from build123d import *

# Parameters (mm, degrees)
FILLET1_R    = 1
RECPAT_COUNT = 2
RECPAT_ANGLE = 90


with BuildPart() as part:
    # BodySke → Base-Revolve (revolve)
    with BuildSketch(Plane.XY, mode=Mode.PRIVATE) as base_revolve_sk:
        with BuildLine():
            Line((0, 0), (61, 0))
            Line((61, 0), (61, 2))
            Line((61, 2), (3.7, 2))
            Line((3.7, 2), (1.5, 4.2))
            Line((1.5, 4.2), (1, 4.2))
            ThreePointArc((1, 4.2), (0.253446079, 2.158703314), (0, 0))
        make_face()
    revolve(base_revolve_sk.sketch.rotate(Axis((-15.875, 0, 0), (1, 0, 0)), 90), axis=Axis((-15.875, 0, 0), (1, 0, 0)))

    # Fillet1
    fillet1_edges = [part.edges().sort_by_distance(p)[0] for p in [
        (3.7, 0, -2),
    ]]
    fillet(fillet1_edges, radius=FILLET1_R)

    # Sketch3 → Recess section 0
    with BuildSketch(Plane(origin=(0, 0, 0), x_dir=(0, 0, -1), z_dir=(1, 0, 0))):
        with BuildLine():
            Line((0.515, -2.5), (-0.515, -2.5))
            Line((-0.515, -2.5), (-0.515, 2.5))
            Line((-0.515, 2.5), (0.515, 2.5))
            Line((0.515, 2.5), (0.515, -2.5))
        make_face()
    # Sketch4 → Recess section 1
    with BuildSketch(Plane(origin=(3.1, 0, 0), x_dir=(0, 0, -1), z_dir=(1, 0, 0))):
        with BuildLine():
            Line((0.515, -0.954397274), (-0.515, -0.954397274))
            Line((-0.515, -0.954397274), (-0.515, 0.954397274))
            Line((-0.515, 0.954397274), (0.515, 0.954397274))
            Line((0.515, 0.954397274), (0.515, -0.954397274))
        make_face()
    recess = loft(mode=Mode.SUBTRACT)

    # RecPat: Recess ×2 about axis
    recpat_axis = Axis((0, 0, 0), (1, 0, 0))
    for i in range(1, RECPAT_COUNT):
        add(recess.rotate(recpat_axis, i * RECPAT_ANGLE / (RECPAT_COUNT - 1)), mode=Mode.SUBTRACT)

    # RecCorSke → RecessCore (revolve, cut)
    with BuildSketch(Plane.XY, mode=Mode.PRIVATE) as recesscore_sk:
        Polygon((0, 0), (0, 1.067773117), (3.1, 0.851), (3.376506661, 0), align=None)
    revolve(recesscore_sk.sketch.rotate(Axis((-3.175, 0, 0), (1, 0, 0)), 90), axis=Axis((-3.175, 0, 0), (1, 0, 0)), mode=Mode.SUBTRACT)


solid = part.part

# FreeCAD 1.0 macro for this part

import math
import FreeCAD as App
import Part
import Sketcher

V = App.Vector
Q = App.Units.Quantity


def edges_at(feature, points):
    """Names of the edges that pass closest to the given points."""
    edges = feature.Shape.Edges
    near = lambda p: min(range(len(edges)), key=lambda i: edges[i].distToShape(Part.Vertex(*p))[0])
    return sorted({f"Edge{near(p) + 1}" for p in points})

doc = App.newDocument("Part")
body = doc.addObject("PartDesign::Body", "Body")

# Sketch on XY plane
sketch1 = body.newObject("Sketcher::SketchObject", "Sketch")
sketch1.AttachmentSupport = (doc.getObject("XY_Plane"), [""])
sketch1.MapMode = "FlatFace"
sketch1.addGeometry([
    Part.LineSegment(V(0, 0, 0), V(61, 0, 0)),  # 0
    Part.LineSegment(V(61, 0, 0), V(61, 2, 0)),  # 1
    Part.LineSegment(V(61, 2, 0), V(3.7, 2, 0)),  # 2
    Part.LineSegment(V(3.7, 2, 0), V(1.5, 4.2, 0)),  # 3
    Part.LineSegment(V(1.5, 4.2, 0), V(1, 4.2, 0)),  # 4
    Part.ArcOfCircle(Part.Circle(V(9.3, 0, 0), V(0, 0, 1), 9.3), math.radians(153), math.radians(180)),  # 5
], False)
sketch1.addConstraint([
    Sketcher.Constraint("Coincident", 0, 2, 1, 1),
    Sketcher.Constraint("Coincident", 1, 2, 2, 1),
    Sketcher.Constraint("Coincident", 2, 2, 3, 1),
    Sketcher.Constraint("Coincident", 3, 2, 4, 1),
    Sketcher.Constraint("Coincident", 4, 2, 5, 1),
    Sketcher.Constraint("Coincident", 5, 2, 0, 1),
    Sketcher.Constraint("Horizontal", 0),
    Sketcher.Constraint("Vertical", 1),
    Sketcher.Constraint("Horizontal", 2),
    Sketcher.Constraint("Horizontal", 4),
    Sketcher.Constraint("Coincident", 5, 2, -1, 1),
    Sketcher.Constraint("PointOnObject", 5, 3, -1),
    Sketcher.Constraint("DistanceX", 0, 1, 0, 2, Q("61 mm")),
    Sketcher.Constraint("DistanceY", 1, 1, 1, 2, Q("2 mm")),
    Sketcher.Constraint("Angle", 3, Q("135 deg")),
    Sketcher.Constraint("Radius", 5, Q("9.32 mm")),
    Sketcher.Constraint("DistanceX", 2, 2, 2, 1, Q("57.3 mm")),
    Sketcher.Constraint("DistanceX", 4, 2, 4, 1, Q("0.5 mm")),
])
revolution = body.newObject("PartDesign::Revolution", "Revolution")
revolution.Profile = sketch1
revolution.ReferenceAxis = (sketch1, ["H_Axis"])
revolution.Angle = 360
doc.recompute()

fillet = body.newObject("PartDesign::Fillet", "Fillet")
fillet.Base = (revolution, edges_at(revolution, [(3.7, 0, -2)]))
fillet.Radius = 1

# Sketch on YZ plane
sketch2 = body.newObject("Sketcher::SketchObject", "Sketch001")
sketch2.AttachmentSupport = (doc.getObject("YZ_Plane"), [""])
sketch2.MapMode = "FlatFace"
sketch2.addGeometry([
    Part.LineSegment(V(-2.5, 0.5, 0), V(-2.5, -0.5, 0)),
    Part.LineSegment(V(-2.5, -0.5, 0), V(2.5, -0.5, 0)),
    Part.LineSegment(V(2.5, -0.5, 0), V(2.5, 0.5, 0)),
    Part.LineSegment(V(2.5, 0.5, 0), V(-2.5, 0.5, 0)),
], False)
sketch2.addConstraint([
    Sketcher.Constraint("Coincident", 0, 2, 1, 1),
    Sketcher.Constraint("Coincident", 1, 2, 2, 1),
    Sketcher.Constraint("Coincident", 2, 2, 3, 1),
    Sketcher.Constraint("Coincident", 3, 2, 0, 1),
    Sketcher.Constraint("Vertical", 0),
    Sketcher.Constraint("Horizontal", 1),
    Sketcher.Constraint("Vertical", 2),
    Sketcher.Constraint("Horizontal", 3),
    Sketcher.Constraint("Symmetric", 0, 2, 2, 2, -1, 1),
    Sketcher.Constraint("DistanceX", 1, 1, 1, 2, Q("5 mm")),
    Sketcher.Constraint("DistanceY", 0, 2, 0, 1, Q("1.03 mm")),
])

# Sketch on YZ plane
sketch3 = body.newObject("Sketcher::SketchObject", "Sketch002")
sketch3.AttachmentSupport = (doc.getObject("YZ_Plane"), [""])
sketch3.MapMode = "FlatFace"
sketch3.AttachmentOffset = App.Placement(V(0, 0, 3.1), App.Rotation())
sketch3.addGeometry([
    Part.LineSegment(V(-1, 0.5, 0), V(-1, -0.5, 0)),
    Part.LineSegment(V(-1, -0.5, 0), V(1, -0.5, 0)),
    Part.LineSegment(V(1, -0.5, 0), V(1, 0.5, 0)),
    Part.LineSegment(V(1, 0.5, 0), V(-1, 0.5, 0)),
], False)
sketch3.addConstraint([
    Sketcher.Constraint("Coincident", 0, 2, 1, 1),
    Sketcher.Constraint("Coincident", 1, 2, 2, 1),
    Sketcher.Constraint("Coincident", 2, 2, 3, 1),
    Sketcher.Constraint("Coincident", 3, 2, 0, 1),
    Sketcher.Constraint("Vertical", 0),
    Sketcher.Constraint("Horizontal", 1),
    Sketcher.Constraint("Vertical", 2),
    Sketcher.Constraint("Horizontal", 3),
    Sketcher.Constraint("Symmetric", 0, 2, 2, 2, -1, 1),
    Sketcher.Constraint("DistanceY", 0, 2, 0, 1, Q("1.03 mm")),
    Sketcher.Constraint("DistanceX", 1, 1, 1, 2, Q("1.908795 mm")),
])

subtractiveloft = body.newObject("PartDesign::SubtractiveLoft", "SubtractiveLoft")
subtractiveloft.Profile = sketch2
subtractiveloft.Sections = [sketch3]
doc.recompute()

polarpattern = body.newObject("PartDesign::PolarPattern", "PolarPattern")
polarpattern.Originals = [subtractiveloft]
polarpattern.Axis = (doc.getObject("X_Axis"), [""])
polarpattern.Angle = 90
polarpattern.Occurrences = 2
body.Tip = polarpattern

# Sketch on XY plane
sketch4 = body.newObject("Sketcher::SketchObject", "Sketch003")
sketch4.AttachmentSupport = (doc.getObject("XY_Plane"), [""])
sketch4.MapMode = "FlatFace"
sketch4.addGeometry([
    Part.LineSegment(V(0, 1.1, 0), V(0, 0, 0)),
    Part.LineSegment(V(0, 0, 0), V(3.4, 0, 0)),
    Part.LineSegment(V(3.4, 0, 0), V(3.1, 0.9, 0)),
    Part.LineSegment(V(3.1, 0.9, 0), V(0, 1.1, 0)),
], False)
sketch4.addConstraint([
    Sketcher.Constraint("Coincident", 0, 2, 1, 1),
    Sketcher.Constraint("Coincident", 1, 2, 2, 1),
    Sketcher.Constraint("Coincident", 2, 2, 3, 1),
    Sketcher.Constraint("Coincident", 3, 2, 0, 1),
    Sketcher.Constraint("Vertical", 0),
    Sketcher.Constraint("Horizontal", 1),
    Sketcher.Constraint("Coincident", 0, 2, -1, 1),
    Sketcher.Constraint("Angle", 2, Q("108 deg")),
    Sketcher.Constraint("Angle", 3, Q("176 deg")),
    Sketcher.Constraint("DistanceX", -1, 1, 2, 2, Q("3.1 mm")),
    Sketcher.Constraint("DistanceY", -1, 1, 2, 2, Q("0.851 mm")),
])
groove = body.newObject("PartDesign::Groove", "Groove")
groove.Profile = sketch4
groove.ReferenceAxis = (sketch4, ["H_Axis"])
groove.Angle = 360

doc.recompute()
